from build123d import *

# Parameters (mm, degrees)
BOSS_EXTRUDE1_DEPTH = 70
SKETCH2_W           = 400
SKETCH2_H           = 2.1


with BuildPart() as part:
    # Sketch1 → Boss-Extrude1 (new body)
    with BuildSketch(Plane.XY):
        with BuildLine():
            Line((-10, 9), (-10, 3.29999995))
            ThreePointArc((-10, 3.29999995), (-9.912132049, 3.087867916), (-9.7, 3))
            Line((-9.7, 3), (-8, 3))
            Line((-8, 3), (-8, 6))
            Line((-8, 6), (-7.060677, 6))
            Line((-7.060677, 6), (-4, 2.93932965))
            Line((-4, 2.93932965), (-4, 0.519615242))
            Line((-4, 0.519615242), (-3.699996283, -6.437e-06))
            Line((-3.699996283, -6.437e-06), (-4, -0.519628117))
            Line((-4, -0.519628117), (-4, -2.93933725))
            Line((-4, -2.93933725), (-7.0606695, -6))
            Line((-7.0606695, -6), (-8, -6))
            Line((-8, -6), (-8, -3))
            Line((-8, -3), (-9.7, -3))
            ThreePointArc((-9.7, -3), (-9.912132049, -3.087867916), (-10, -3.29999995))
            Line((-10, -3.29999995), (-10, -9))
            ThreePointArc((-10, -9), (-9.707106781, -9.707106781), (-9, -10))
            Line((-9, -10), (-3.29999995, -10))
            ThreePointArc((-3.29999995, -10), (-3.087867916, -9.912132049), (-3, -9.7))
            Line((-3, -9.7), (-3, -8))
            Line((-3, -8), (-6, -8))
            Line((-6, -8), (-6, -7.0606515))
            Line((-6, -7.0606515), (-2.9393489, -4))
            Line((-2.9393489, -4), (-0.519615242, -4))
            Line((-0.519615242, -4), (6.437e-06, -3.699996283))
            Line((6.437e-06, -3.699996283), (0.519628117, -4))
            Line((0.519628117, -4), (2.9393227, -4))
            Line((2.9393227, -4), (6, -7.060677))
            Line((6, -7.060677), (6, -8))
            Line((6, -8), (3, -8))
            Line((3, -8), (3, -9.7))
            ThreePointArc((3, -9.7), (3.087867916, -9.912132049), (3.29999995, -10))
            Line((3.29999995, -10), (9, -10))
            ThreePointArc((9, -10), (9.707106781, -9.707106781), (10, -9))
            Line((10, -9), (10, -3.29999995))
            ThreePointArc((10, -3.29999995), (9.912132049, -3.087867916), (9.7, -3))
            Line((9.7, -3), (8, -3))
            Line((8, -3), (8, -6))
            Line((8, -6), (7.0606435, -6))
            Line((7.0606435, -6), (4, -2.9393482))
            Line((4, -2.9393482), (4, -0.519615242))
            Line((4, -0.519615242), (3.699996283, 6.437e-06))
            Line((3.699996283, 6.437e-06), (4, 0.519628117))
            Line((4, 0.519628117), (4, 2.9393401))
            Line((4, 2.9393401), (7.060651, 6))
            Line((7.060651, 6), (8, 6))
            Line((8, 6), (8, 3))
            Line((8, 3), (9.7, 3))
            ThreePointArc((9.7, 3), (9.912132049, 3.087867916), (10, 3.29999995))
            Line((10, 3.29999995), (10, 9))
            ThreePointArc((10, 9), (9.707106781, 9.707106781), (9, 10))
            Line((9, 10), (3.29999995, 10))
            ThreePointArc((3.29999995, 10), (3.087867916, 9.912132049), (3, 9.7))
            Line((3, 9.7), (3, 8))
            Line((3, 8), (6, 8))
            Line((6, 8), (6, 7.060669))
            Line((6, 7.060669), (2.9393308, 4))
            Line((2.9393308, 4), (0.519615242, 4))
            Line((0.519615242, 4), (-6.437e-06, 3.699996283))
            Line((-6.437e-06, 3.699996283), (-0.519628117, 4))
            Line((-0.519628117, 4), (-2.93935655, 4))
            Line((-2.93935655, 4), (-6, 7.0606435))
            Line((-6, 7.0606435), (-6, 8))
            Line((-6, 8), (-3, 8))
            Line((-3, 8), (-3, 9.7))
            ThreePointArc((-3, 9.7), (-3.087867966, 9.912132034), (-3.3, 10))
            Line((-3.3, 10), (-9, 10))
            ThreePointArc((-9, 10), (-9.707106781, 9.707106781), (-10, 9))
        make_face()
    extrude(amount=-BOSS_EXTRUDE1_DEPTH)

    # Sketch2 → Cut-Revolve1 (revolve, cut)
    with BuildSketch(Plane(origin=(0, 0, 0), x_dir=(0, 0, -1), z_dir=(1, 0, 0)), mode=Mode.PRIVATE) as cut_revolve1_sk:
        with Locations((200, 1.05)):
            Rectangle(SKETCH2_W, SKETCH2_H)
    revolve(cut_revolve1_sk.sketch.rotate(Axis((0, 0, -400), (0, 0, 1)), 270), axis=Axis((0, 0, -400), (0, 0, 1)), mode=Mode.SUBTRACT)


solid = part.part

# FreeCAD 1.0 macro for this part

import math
import FreeCAD as App
import Part
import Sketcher

V = App.Vector
Q = App.Units.Quantity


def add_polygon(sketch, points):
    """Adds a closed chain of lines whose ends are joined by coincident constraints."""
    first, n = sketch.GeometryCount, len(points)
    for a, b in zip(points, points[1:] + points[:1]):
        sketch.addGeometry(Part.LineSegment(App.Vector(*a, 0), App.Vector(*b, 0)), False)
    for i in range(n):
        sketch.addConstraint(Sketcher.Constraint("Coincident", first + i, 2, first + (i + 1) % n, 1))

doc = App.newDocument("Part")
body = doc.addObject("PartDesign::Body", "Body")

# Sketch on XY plane
sketch1 = body.newObject("Sketcher::SketchObject", "Sketch")
sketch1.AttachmentSupport = (doc.getObject("XY_Plane"), [""])
sketch1.MapMode = "FlatFace"
sketch1.addGeometry([
    Part.LineSegment(V(-10, 9, 0), V(-10, 3.3, 0)),  # 0
    Part.ArcOfCircle(Part.Circle(V(-9.7, 3.3, 0), V(0, 0, 1), 0.3), math.radians(180), math.radians(270)),  # 1
    Part.LineSegment(V(-9.7, 3, 0), V(-8, 3, 0)),  # 2
    Part.LineSegment(V(-8, 3, 0), V(-8, 6, 0)),  # 3
    Part.LineSegment(V(-8, 6, 0), V(-7.06, 6, 0)),  # 4
    Part.LineSegment(V(-7.06, 6, 0), V(-4, 2.94, 0)),  # 5
    Part.LineSegment(V(-4, 2.94, 0), V(-4, 0.52, 0)),  # 6
    Part.LineSegment(V(-4, 0.52, 0), V(-3.7, 0, 0)),  # 7
    Part.LineSegment(V(-3.7, 0, 0), V(-4, -0.52, 0)),  # 8
    Part.LineSegment(V(-4, -0.52, 0), V(-4, -2.94, 0)),  # 9
    Part.LineSegment(V(-4, -2.94, 0), V(-7.06, -6, 0)),  # 10
    Part.LineSegment(V(-7.06, -6, 0), V(-8, -6, 0)),  # 11
    Part.LineSegment(V(-8, -6, 0), V(-8, -3, 0)),  # 12
    Part.LineSegment(V(-8, -3, 0), V(-9.7, -3, 0)),  # 13
    Part.ArcOfCircle(Part.Circle(V(-9.7, -3.3, 0), V(0, 0, 1), 0.3), math.radians(90), math.radians(180)),  # 14
    Part.LineSegment(V(-10, -3.3, 0), V(-10, -9, 0)),  # 15
    Part.ArcOfCircle(Part.Circle(V(-9, -9, 0), V(0, 0, 1), 1), math.radians(-180), math.radians(-90)),  # 16
    Part.LineSegment(V(-9, -10, 0), V(-3.3, -10, 0)),  # 17
    Part.ArcOfCircle(Part.Circle(V(-3.3, -9.7, 0), V(0, 0, 1), 0.3), math.radians(-90), math.radians(0)),  # 18
    Part.LineSegment(V(-3, -9.7, 0), V(-3, -8, 0)),  # 19
    Part.LineSegment(V(-3, -8, 0), V(-6, -8, 0)),  # 20
    Part.LineSegment(V(-6, -8, 0), V(-6, -7.06, 0)),  # 21
    Part.LineSegment(V(-6, -7.06, 0), V(-2.94, -4, 0)),  # 22
    Part.LineSegment(V(-2.94, -4, 0), V(-0.52, -4, 0)),  # 23
    Part.LineSegment(V(-0.52, -4, 0), V(0, -3.7, 0)),  # 24
    Part.LineSegment(V(0, -3.7, 0), V(0.52, -4, 0)),  # 25
    Part.LineSegment(V(0.52, -4, 0), V(2.94, -4, 0)),  # 26
    Part.LineSegment(V(2.94, -4, 0), V(6, -7.06, 0)),  # 27
    Part.LineSegment(V(6, -7.06, 0), V(6, -8, 0)),  # 28
    Part.LineSegment(V(6, -8, 0), V(3, -8, 0)),  # 29
    Part.LineSegment(V(3, -8, 0), V(3, -9.7, 0)),  # 30
    Part.ArcOfCircle(Part.Circle(V(3.3, -9.7, 0), V(0, 0, 1), 0.3), math.radians(180), math.radians(270)),  # 31
    Part.LineSegment(V(3.3, -10, 0), V(9, -10, 0)),  # 32
    Part.ArcOfCircle(Part.Circle(V(9, -9, 0), V(0, 0, 1), 1), math.radians(-90), math.radians(0)),  # 33
    Part.LineSegment(V(10, -9, 0), V(10, -3.3, 0)),  # 34
    Part.ArcOfCircle(Part.Circle(V(9.7, -3.3, 0), V(0, 0, 1), 0.3), math.radians(0), math.radians(90)),  # 35
    Part.LineSegment(V(9.7, -3, 0), V(8, -3, 0)),  # 36
    Part.LineSegment(V(8, -3, 0), V(8, -6, 0)),  # 37
    Part.LineSegment(V(8, -6, 0), V(7.06, -6, 0)),  # 38
    Part.LineSegment(V(7.06, -6, 0), V(4, -2.94, 0)),  # 39
    Part.LineSegment(V(4, -2.94, 0), V(4, -0.52, 0)),  # 40
    Part.LineSegment(V(4, -0.52, 0), V(3.7, 0, 0)),  # 41
    Part.LineSegment(V(3.7, 0, 0), V(4, 0.52, 0)),  # 42
    Part.LineSegment(V(4, 0.52, 0), V(4, 2.94, 0)),  # 43
    Part.LineSegment(V(4, 2.94, 0), V(7.06, 6, 0)),  # 44
    Part.LineSegment(V(7.06, 6, 0), V(8, 6, 0)),  # 45
    Part.LineSegment(V(8, 6, 0), V(8, 3, 0)),  # 46
    Part.LineSegment(V(8, 3, 0), V(9.7, 3, 0)),  # 47
    Part.ArcOfCircle(Part.Circle(V(9.7, 3.3, 0), V(0, 0, 1), 0.3), math.radians(-90), math.radians(0)),  # 48
    Part.LineSegment(V(10, 3.3, 0), V(10, 9, 0)),  # 49
    Part.ArcOfCircle(Part.Circle(V(9, 9, 0), V(0, 0, 1), 1), math.radians(0), math.radians(90)),  # 50
    Part.LineSegment(V(9, 10, 0), V(3.3, 10, 0)),  # 51
    Part.ArcOfCircle(Part.Circle(V(3.3, 9.7, 0), V(0, 0, 1), 0.3), math.radians(90), math.radians(180)),  # 52
    Part.LineSegment(V(3, 9.7, 0), V(3, 8, 0)),  # 53
    Part.LineSegment(V(3, 8, 0), V(6, 8, 0)),  # 54
    Part.LineSegment(V(6, 8, 0), V(6, 7.06, 0)),  # 55
    Part.LineSegment(V(6, 7.06, 0), V(2.94, 4, 0)),  # 56
    Part.LineSegment(V(2.94, 4, 0), V(0.52, 4, 0)),  # 57
    Part.LineSegment(V(0.52, 4, 0), V(0, 3.7, 0)),  # 58
    Part.LineSegment(V(0, 3.7, 0), V(-0.52, 4, 0)),  # 59
    Part.LineSegment(V(-0.52, 4, 0), V(-2.94, 4, 0)),  # 60
    Part.LineSegment(V(-2.94, 4, 0), V(-6, 7.06, 0)),  # 61
    Part.LineSegment(V(-6, 7.06, 0), V(-6, 8, 0)),  # 62
    Part.LineSegment(V(-6, 8, 0), V(-3, 8, 0)),  # 63
    Part.LineSegment(V(-3, 8, 0), V(-3, 9.7, 0)),  # 64
    Part.ArcOfCircle(Part.Circle(V(-3.3, 9.7, 0), V(0, 0, 1), 0.3), math.radians(0), math.radians(90)),  # 65
    Part.LineSegment(V(-3.3, 10, 0), V(-9, 10, 0)),  # 66
    Part.ArcOfCircle(Part.Circle(V(-9, 9, 0), V(0, 0, 1), 1), math.radians(90), math.radians(180)),  # 67
], False)
sketch1.addConstraint([
    Sketcher.Constraint("Tangent", 0, 2, 1, 1),
    Sketcher.Constraint("Tangent", 1, 2, 2, 1),
    Sketcher.Constraint("Coincident", 2, 2, 3, 1),
    Sketcher.Constraint("Coincident", 3, 2, 4, 1),
    Sketcher.Constraint("Coincident", 4, 2, 5, 1),
    Sketcher.Constraint("Coincident", 5, 2, 6, 1),
    Sketcher.Constraint("Coincident", 6, 2, 7, 1),
    Sketcher.Constraint("Coincident", 7, 2, 8, 1),
    Sketcher.Constraint("Coincident", 8, 2, 9, 1),
    Sketcher.Constraint("Coincident", 9, 2, 10, 1),
    Sketcher.Constraint("Coincident", 10, 2, 11, 1),
    Sketcher.Constraint("Coincident", 11, 2, 12, 1),
    Sketcher.Constraint("Coincident", 12, 2, 13, 1),
    Sketcher.Constraint("Tangent", 13, 2, 14, 1),
    Sketcher.Constraint("Tangent", 14, 2, 15, 1),
    Sketcher.Constraint("Tangent", 15, 2, 16, 1),
    Sketcher.Constraint("Tangent", 16, 2, 17, 1),
    Sketcher.Constraint("Tangent", 17, 2, 18, 1),
    Sketcher.Constraint("Tangent", 18, 2, 19, 1),
    Sketcher.Constraint("Coincident", 19, 2, 20, 1),
    Sketcher.Constraint("Coincident", 20, 2, 21, 1),
    Sketcher.Constraint("Coincident", 21, 2, 22, 1),
    Sketcher.Constraint("Coincident", 22, 2, 23, 1),
    Sketcher.Constraint("Coincident", 23, 2, 24, 1),
    Sketcher.Constraint("Coincident", 24, 2, 25, 1),
    Sketcher.Constraint("Coincident", 25, 2, 26, 1),
    Sketcher.Constraint("Coincident", 26, 2, 27, 1),
    Sketcher.Constraint("Coincident", 27, 2, 28, 1),
    Sketcher.Constraint("Coincident", 28, 2, 29, 1),
    Sketcher.Constraint("Coincident", 29, 2, 30, 1),
    Sketcher.Constraint("Tangent", 30, 2, 31, 1),
    Sketcher.Constraint("Tangent", 31, 2, 32, 1),
    Sketcher.Constraint("Tangent", 32, 2, 33, 1),
    Sketcher.Constraint("Tangent", 33, 2, 34, 1),
    Sketcher.Constraint("Tangent", 34, 2, 35, 1),
    Sketcher.Constraint("Tangent", 35, 2, 36, 1),
    Sketcher.Constraint("Coincident", 36, 2, 37, 1),
    Sketcher.Constraint("Coincident", 37, 2, 38, 1),
    Sketcher.Constraint("Coincident", 38, 2, 39, 1),
    Sketcher.Constraint("Coincident", 39, 2, 40, 1),
    Sketcher.Constraint("Coincident", 40, 2, 41, 1),
    Sketcher.Constraint("Coincident", 41, 2, 42, 1),
    Sketcher.Constraint("Coincident", 42, 2, 43, 1),
    Sketcher.Constraint("Coincident", 43, 2, 44, 1),
    Sketcher.Constraint("Coincident", 44, 2, 45, 1),
    Sketcher.Constraint("Coincident", 45, 2, 46, 1),
    Sketcher.Constraint("Coincident", 46, 2, 47, 1),
    Sketcher.Constraint("Tangent", 47, 2, 48, 1),
    Sketcher.Constraint("Tangent", 48, 2, 49, 1),
    Sketcher.Constraint("Tangent", 49, 2, 50, 1),
    Sketcher.Constraint("Tangent", 50, 2, 51, 1),
    Sketcher.Constraint("Tangent", 51, 2, 52, 1),
    Sketcher.Constraint("Tangent", 52, 2, 53, 1),
    Sketcher.Constraint("Coincident", 53, 2, 54, 1),
    Sketcher.Constraint("Coincident", 54, 2, 55, 1),
    Sketcher.Constraint("Coincident", 55, 2, 56, 1),
    Sketcher.Constraint("Coincident", 56, 2, 57, 1),
    Sketcher.Constraint("Coincident", 57, 2, 58, 1),
    Sketcher.Constraint("Coincident", 58, 2, 59, 1),
    Sketcher.Constraint("Coincident", 59, 2, 60, 1),
    Sketcher.Constraint("Coincident", 60, 2, 61, 1),
    Sketcher.Constraint("Coincident", 61, 2, 62, 1),
    Sketcher.Constraint("Coincident", 62, 2, 63, 1),
    Sketcher.Constraint("Coincident", 63, 2, 64, 1),
    Sketcher.Constraint("Tangent", 64, 2, 65, 1),
    Sketcher.Constraint("Tangent", 65, 2, 66, 1),
    Sketcher.Constraint("Tangent", 66, 2, 67, 1),
    Sketcher.Constraint("Tangent", 67, 2, 0, 1),
    Sketcher.Constraint("Vertical", 0),
    Sketcher.Constraint("Horizontal", 2),
    Sketcher.Constraint("Vertical", 3),
    Sketcher.Constraint("Horizontal", 4),
    Sketcher.Constraint("Vertical", 6),
    Sketcher.Constraint("Vertical", 9),
    Sketcher.Constraint("Horizontal", 11),
    Sketcher.Constraint("Vertical", 12),
    Sketcher.Constraint("Horizontal", 13),
    Sketcher.Constraint("Vertical", 15),
    Sketcher.Constraint("Horizontal", 17),
    Sketcher.Constraint("Vertical", 19),
    Sketcher.Constraint("Horizontal", 20),
    Sketcher.Constraint("Vertical", 21),
    Sketcher.Constraint("Horizontal", 23),
    Sketcher.Constraint("Horizontal", 26),
    Sketcher.Constraint("Vertical", 28),
    Sketcher.Constraint("Horizontal", 29),
    Sketcher.Constraint("Vertical", 30),
    Sketcher.Constraint("Horizontal", 32),
    Sketcher.Constraint("Vertical", 34),
    Sketcher.Constraint("Horizontal", 36),
    Sketcher.Constraint("Vertical", 37),
    Sketcher.Constraint("Horizontal", 38),
    Sketcher.Constraint("Vertical", 40),
    Sketcher.Constraint("Vertical", 43),
    Sketcher.Constraint("Horizontal", 45),
    Sketcher.Constraint("Vertical", 46),
    Sketcher.Constraint("Horizontal", 47),
    Sketcher.Constraint("Vertical", 49),
    Sketcher.Constraint("Horizontal", 51),
    Sketcher.Constraint("Vertical", 53),
    Sketcher.Constraint("Horizontal", 54),
    Sketcher.Constraint("Vertical", 55),
    Sketcher.Constraint("Horizontal", 57),
    Sketcher.Constraint("Horizontal", 60),
    Sketcher.Constraint("Vertical", 62),
    Sketcher.Constraint("Horizontal", 63),
    Sketcher.Constraint("Vertical", 64),
    Sketcher.Constraint("Horizontal", 66),
    Sketcher.Constraint("Equal", 1, 14),
    Sketcher.Constraint("Equal", 14, 18),
    Sketcher.Constraint("Equal", 18, 31),
    Sketcher.Constraint("Equal", 16, 33),
    Sketcher.Constraint("Equal", 31, 35),
    Sketcher.Constraint("Equal", 35, 48),
    Sketcher.Constraint("Equal", 33, 50),
    Sketcher.Constraint("Equal", 48, 52),
    Sketcher.Constraint("Equal", 52, 65),
    Sketcher.Constraint("Equal", 50, 67),
    Sketcher.Constraint("Symmetric", 1, 3, 35, 3, -1, 1),
    Sketcher.Constraint("Symmetric", 14, 3, 48, 3, -1, 1),
    Sketcher.Constraint("Symmetric", 18, 3, 52, 3, -1, 1),
    Sketcher.Constraint("Symmetric", 31, 3, 65, 3, -1, 1),
    Sketcher.Constraint("Symmetric", 3, 2, 37, 2, -1, 1),
    Sketcher.Constraint("Symmetric", 6, 2, 40, 2, -1, 1),
    Sketcher.Constraint("Symmetric", 7, 2, 41, 2, -1, 1),
    Sketcher.Constraint("Symmetric", 8, 2, 42, 2, -1, 1),
    Sketcher.Constraint("Symmetric", 11, 2, 45, 2, -1, 1),
    Sketcher.Constraint("Symmetric", 20, 2, 54, 2, -1, 1),
    Sketcher.Constraint("Symmetric", 23, 2, 57, 2, -1, 1),
    Sketcher.Constraint("Symmetric", 24, 2, 58, 2, -1, 1),
    Sketcher.Constraint("Symmetric", 25, 2, 59, 2, -1, 1),
    Sketcher.Constraint("Symmetric", 28, 2, 62, 2, -1, 1),
    Sketcher.Constraint("Symmetric", 18, 3, 31, 3, -2),
    Sketcher.Constraint("Symmetric", 14, 3, 35, 3, -2),
    Sketcher.Constraint("Symmetric", 20, 2, 28, 2, -2),
    Sketcher.Constraint("Symmetric", 11, 2, 37, 2, -2),
    Sketcher.Constraint("Symmetric", 5, 2, 9, 2, -1),
    Sketcher.Constraint("Symmetric", 26, 2, 56, 2, -1),
    Sketcher.Constraint("Parallel", 10, 22),
    Sketcher.Constraint("Perpendicular", 7, 24),
    Sketcher.Constraint("Perpendicular", 8, 25),
    Sketcher.Constraint("Perpendicular", 22, 27),
    Sketcher.Constraint("Parallel", 27, 39),
    Sketcher.Constraint("Perpendicular", 27, 44),
    Sketcher.Constraint("Parallel", 44, 56),
    Sketcher.Constraint("Perpendicular", 56, 61),
    Sketcher.Constraint("Equal", 66, 0),
    Sketcher.Constraint("Equal", 63, 3),
    Sketcher.Constraint("Equal", 57, 6),
    Sketcher.Constraint("Equal", 47, 19),
    Sketcher.Constraint("Equal", 45, 21),
    Sketcher.Constraint("Equal", 4, 28),
    Sketcher.Constraint("Equal", 23, 40),
    Sketcher.Constraint("Equal", 11, 55),
    Sketcher.Constraint("Equal", 38, 62),
    Sketcher.Constraint("Equal", 7, 8),
    Sketcher.Constraint("Equal", 8, 24),
    Sketcher.Constraint("Radius", 16, Q("1 mm")),
    Sketcher.Constraint("Radius", 1, Q("0.3 mm")),
    Sketcher.Constraint("DistanceX", 20, 2, 20, 1, Q("3 mm")),
    Sketcher.Constraint("Angle", 7, Q("-60 deg")),
    Sketcher.Constraint("Angle", 22, Q("45.000004 deg")),
    Sketcher.Constraint("DistanceX", 2, 1, 2, 2, Q("1.7 mm")),
    Sketcher.Constraint("DistanceX", 17, 1, 17, 2, Q("5.7 mm")),
    Sketcher.Constraint("DistanceX", 16, 3, -1, 1, Q("9 mm")),
    Sketcher.Constraint("DistanceY", 16, 3, -1, 1, Q("9 mm")),
    Sketcher.Constraint("DistanceX", 5, 2, -1, 1, Q("4 mm")),
    Sketcher.Constraint("DistanceY", 22, 2, -1, 1, Q("4 mm")),
    Sketcher.Constraint("DistanceX", 11, 2, 11, 1, Q("0.93933 mm")),
    Sketcher.Constraint("DistanceX", 45, 1, 45, 2, Q("0.939349 mm")),
    Sketcher.Constraint("DistanceX", 60, 2, 60, 1, Q("2.419728 mm")),
    Sketcher.Constraint("DistanceX", 23, 1, 23, 2, Q("2.419734 mm")),
])
pad1 = body.newObject("PartDesign::Pad", "Pad")
pad1.Profile = sketch1
pad1.Length = 70
pad1.Reversed = True

# Sketch on YZ plane
sketch2 = body.newObject("Sketcher::SketchObject", "Sketch001")
sketch2.AttachmentSupport = (doc.getObject("YZ_Plane"), [""])
sketch2.MapMode = "FlatFace"
add_polygon(sketch2, [(2.1, 0), (0, 0), (0, -400), (2.1, -400)])  # lines 0-3
sketch2.addConstraint([
    Sketcher.Constraint("Horizontal", 0),
    Sketcher.Constraint("Vertical", 1),
    Sketcher.Constraint("Horizontal", 2),
    Sketcher.Constraint("Vertical", 3),
    Sketcher.Constraint("Coincident", 0, 2, -1, 1),
    Sketcher.Constraint("DistanceY", 1, 2, 1, 1, Q("400 mm")),
    Sketcher.Constraint("DistanceX", 0, 2, 0, 1, Q("2.1 mm")),
])
groove = body.newObject("PartDesign::Groove", "Groove")
groove.Profile = sketch2
groove.ReferenceAxis = (sketch2, ["V_Axis"])
groove.Angle = 360

doc.recompute()
